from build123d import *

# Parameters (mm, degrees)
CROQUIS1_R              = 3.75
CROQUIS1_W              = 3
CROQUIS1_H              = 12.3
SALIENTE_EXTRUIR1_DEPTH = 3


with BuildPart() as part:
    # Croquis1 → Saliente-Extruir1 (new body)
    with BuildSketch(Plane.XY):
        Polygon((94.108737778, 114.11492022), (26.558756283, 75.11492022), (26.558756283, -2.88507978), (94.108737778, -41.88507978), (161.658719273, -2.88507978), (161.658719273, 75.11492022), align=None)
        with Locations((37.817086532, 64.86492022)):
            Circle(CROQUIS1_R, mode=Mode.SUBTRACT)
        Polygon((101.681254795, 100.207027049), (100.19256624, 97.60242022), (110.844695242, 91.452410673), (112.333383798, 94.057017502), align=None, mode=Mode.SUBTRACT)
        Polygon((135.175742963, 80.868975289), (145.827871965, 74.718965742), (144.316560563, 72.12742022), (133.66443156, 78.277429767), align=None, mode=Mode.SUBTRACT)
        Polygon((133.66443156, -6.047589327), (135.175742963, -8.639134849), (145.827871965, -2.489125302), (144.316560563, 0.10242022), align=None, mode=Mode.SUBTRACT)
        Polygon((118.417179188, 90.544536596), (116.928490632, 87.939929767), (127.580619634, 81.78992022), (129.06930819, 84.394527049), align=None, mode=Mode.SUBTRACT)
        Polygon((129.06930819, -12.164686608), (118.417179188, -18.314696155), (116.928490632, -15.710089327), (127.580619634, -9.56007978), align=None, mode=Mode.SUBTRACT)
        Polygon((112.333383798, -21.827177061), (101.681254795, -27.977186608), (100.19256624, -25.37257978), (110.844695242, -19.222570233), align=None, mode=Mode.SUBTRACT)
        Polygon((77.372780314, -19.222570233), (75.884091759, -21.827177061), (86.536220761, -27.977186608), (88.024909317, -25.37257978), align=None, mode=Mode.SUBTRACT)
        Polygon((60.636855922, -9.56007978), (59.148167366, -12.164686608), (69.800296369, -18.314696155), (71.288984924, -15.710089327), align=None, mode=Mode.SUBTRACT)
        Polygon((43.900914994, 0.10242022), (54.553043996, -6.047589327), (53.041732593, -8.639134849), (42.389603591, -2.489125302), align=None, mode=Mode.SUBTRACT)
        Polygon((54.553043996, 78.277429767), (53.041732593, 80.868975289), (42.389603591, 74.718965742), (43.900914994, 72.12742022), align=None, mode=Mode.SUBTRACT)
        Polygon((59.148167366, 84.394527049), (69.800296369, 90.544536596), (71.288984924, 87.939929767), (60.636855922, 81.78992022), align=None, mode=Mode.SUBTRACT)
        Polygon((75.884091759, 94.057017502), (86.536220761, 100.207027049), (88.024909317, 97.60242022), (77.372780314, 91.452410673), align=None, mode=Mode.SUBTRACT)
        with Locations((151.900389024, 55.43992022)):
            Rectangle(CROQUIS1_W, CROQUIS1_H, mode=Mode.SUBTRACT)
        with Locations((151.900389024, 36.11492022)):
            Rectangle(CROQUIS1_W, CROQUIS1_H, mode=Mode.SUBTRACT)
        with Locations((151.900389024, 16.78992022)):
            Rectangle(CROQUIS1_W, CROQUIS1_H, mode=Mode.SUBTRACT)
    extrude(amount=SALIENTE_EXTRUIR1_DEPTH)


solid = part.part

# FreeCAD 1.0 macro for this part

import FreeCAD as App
import Part
import Sketcher
Q = App.Units.Quantity

doc = App.newDocument("Part")
body = doc.addObject("PartDesign::Body", "Body")

# Sketch on XY plane
sketch1 = doc.addObject("Sketcher::SketchObject", "Sketch")
body.addObject(sketch1)
sketch1.AttachmentSupport = (doc.XY_Plane, [""])
sketch1.MapMode = "FlatFace"
sketch1.addGeometry([
    Part.LineSegment(App.Vector(94.1, 114.1, 0), App.Vector(26.6, 75.1, 0)),  # 0
    Part.LineSegment(App.Vector(26.6, 75.1, 0), App.Vector(26.6, -2.9, 0)),  # 1
    Part.LineSegment(App.Vector(26.6, -2.9, 0), App.Vector(94.1, -41.9, 0)),  # 2
    Part.LineSegment(App.Vector(94.1, -41.9, 0), App.Vector(161.7, -2.9, 0)),  # 3
    Part.LineSegment(App.Vector(161.7, -2.9, 0), App.Vector(161.7, 75.1, 0)),  # 4
    Part.LineSegment(App.Vector(161.7, 75.1, 0), App.Vector(94.1, 114.1, 0)),  # 5
    Part.LineSegment(App.Vector(42.4, -2.5, 0), App.Vector(43.9, 0.1, 0)),  # 6
    Part.LineSegment(App.Vector(43.9, 0.1, 0), App.Vector(54.6, -6, 0)),  # 7
    Part.LineSegment(App.Vector(54.6, -6, 0), App.Vector(53, -8.6, 0)),  # 8
    Part.LineSegment(App.Vector(53, -8.6, 0), App.Vector(42.4, -2.5, 0)),  # 9
    Part.LineSegment(App.Vector(59.1, -12.2, 0), App.Vector(60.6, -9.6, 0)),  # 10
    Part.LineSegment(App.Vector(60.6, -9.6, 0), App.Vector(71.3, -15.7, 0)),  # 11
    Part.LineSegment(App.Vector(71.3, -15.7, 0), App.Vector(69.8, -18.3, 0)),  # 12
    Part.LineSegment(App.Vector(69.8, -18.3, 0), App.Vector(59.1, -12.2, 0)),  # 13
    Part.LineSegment(App.Vector(75.9, -21.8, 0), App.Vector(77.4, -19.2, 0)),  # 14
    Part.LineSegment(App.Vector(77.4, -19.2, 0), App.Vector(88, -25.4, 0)),  # 15
    Part.LineSegment(App.Vector(88, -25.4, 0), App.Vector(86.5, -28, 0)),  # 16
    Part.LineSegment(App.Vector(86.5, -28, 0), App.Vector(75.9, -21.8, 0)),  # 17
    Part.LineSegment(App.Vector(110.8, -19.2, 0), App.Vector(112.3, -21.8, 0)),  # 18
    Part.LineSegment(App.Vector(112.3, -21.8, 0), App.Vector(101.7, -28, 0)),  # 19
    Part.LineSegment(App.Vector(101.7, -28, 0), App.Vector(100.2, -25.4, 0)),  # 20
    Part.LineSegment(App.Vector(100.2, -25.4, 0), App.Vector(110.8, -19.2, 0)),  # 21
    Part.LineSegment(App.Vector(127.6, -9.6, 0), App.Vector(129.1, -12.2, 0)),  # 22
    Part.LineSegment(App.Vector(129.1, -12.2, 0), App.Vector(118.4, -18.3, 0)),  # 23
    Part.LineSegment(App.Vector(118.4, -18.3, 0), App.Vector(116.9, -15.7, 0)),  # 24
    Part.LineSegment(App.Vector(116.9, -15.7, 0), App.Vector(127.6, -9.6, 0)),  # 25
    Part.LineSegment(App.Vector(135.2, -8.6, 0), App.Vector(133.7, -6, 0)),  # 26
    Part.LineSegment(App.Vector(133.7, -6, 0), App.Vector(144.3, 0.1, 0)),  # 27
    Part.LineSegment(App.Vector(144.3, 0.1, 0), App.Vector(145.8, -2.5, 0)),  # 28
    Part.LineSegment(App.Vector(145.8, -2.5, 0), App.Vector(135.2, -8.6, 0)),  # 29
    Part.LineSegment(App.Vector(153.4, 10.6, 0), App.Vector(150.4, 10.6, 0)),  # 30
    Part.LineSegment(App.Vector(150.4, 10.6, 0), App.Vector(150.4, 22.9, 0)),  # 31
    Part.LineSegment(App.Vector(150.4, 22.9, 0), App.Vector(153.4, 22.9, 0)),  # 32
    Part.LineSegment(App.Vector(153.4, 22.9, 0), App.Vector(153.4, 10.6, 0)),  # 33
    Part.LineSegment(App.Vector(153.4, 30, 0), App.Vector(150.4, 30, 0)),  # 34
    Part.LineSegment(App.Vector(150.4, 30, 0), App.Vector(150.4, 42.3, 0)),  # 35
    Part.LineSegment(App.Vector(150.4, 42.3, 0), App.Vector(153.4, 42.3, 0)),  # 36
    Part.LineSegment(App.Vector(153.4, 42.3, 0), App.Vector(153.4, 30, 0)),  # 37
    Part.Circle(App.Vector(37.8, 64.9, 0), App.Vector(0, 0, 1), 3.8),  # 38
    Part.LineSegment(App.Vector(53, 80.9, 0), App.Vector(54.6, 78.3, 0)),  # 39
    Part.LineSegment(App.Vector(54.6, 78.3, 0), App.Vector(43.9, 72.1, 0)),  # 40
    Part.LineSegment(App.Vector(43.9, 72.1, 0), App.Vector(42.4, 74.7, 0)),  # 41
    Part.LineSegment(App.Vector(42.4, 74.7, 0), App.Vector(53, 80.9, 0)),  # 42
    Part.LineSegment(App.Vector(60.6, 81.8, 0), App.Vector(59.1, 84.4, 0)),  # 43
    Part.LineSegment(App.Vector(59.1, 84.4, 0), App.Vector(69.8, 90.5, 0)),  # 44
    Part.LineSegment(App.Vector(69.8, 90.5, 0), App.Vector(71.3, 87.9, 0)),  # 45
    Part.LineSegment(App.Vector(71.3, 87.9, 0), App.Vector(60.6, 81.8, 0)),  # 46
    Part.LineSegment(App.Vector(77.4, 91.5, 0), App.Vector(75.9, 94.1, 0)),  # 47
    Part.LineSegment(App.Vector(75.9, 94.1, 0), App.Vector(86.5, 100.2, 0)),  # 48
    Part.LineSegment(App.Vector(86.5, 100.2, 0), App.Vector(88, 97.6, 0)),  # 49
    Part.LineSegment(App.Vector(88, 97.6, 0), App.Vector(77.4, 91.5, 0)),  # 50
    Part.LineSegment(App.Vector(153.4, 49.3, 0), App.Vector(150.4, 49.3, 0)),  # 51
    Part.LineSegment(App.Vector(150.4, 49.3, 0), App.Vector(150.4, 61.6, 0)),  # 52
    Part.LineSegment(App.Vector(150.4, 61.6, 0), App.Vector(153.4, 61.6, 0)),  # 53
    Part.LineSegment(App.Vector(153.4, 61.6, 0), App.Vector(153.4, 49.3, 0)),  # 54
    Part.LineSegment(App.Vector(100.2, 97.6, 0), App.Vector(101.7, 100.2, 0)),  # 55
    Part.LineSegment(App.Vector(101.7, 100.2, 0), App.Vector(112.3, 94.1, 0)),  # 56
    Part.LineSegment(App.Vector(112.3, 94.1, 0), App.Vector(110.8, 91.5, 0)),  # 57
    Part.LineSegment(App.Vector(110.8, 91.5, 0), App.Vector(100.2, 97.6, 0)),  # 58
    Part.LineSegment(App.Vector(116.9, 87.9, 0), App.Vector(118.4, 90.5, 0)),  # 59
    Part.LineSegment(App.Vector(118.4, 90.5, 0), App.Vector(129.1, 84.4, 0)),  # 60
    Part.LineSegment(App.Vector(129.1, 84.4, 0), App.Vector(127.6, 81.8, 0)),  # 61
    Part.LineSegment(App.Vector(127.6, 81.8, 0), App.Vector(116.9, 87.9, 0)),  # 62
    Part.LineSegment(App.Vector(133.7, 78.3, 0), App.Vector(135.2, 80.9, 0)),  # 63
    Part.LineSegment(App.Vector(135.2, 80.9, 0), App.Vector(145.8, 74.7, 0)),  # 64
    Part.LineSegment(App.Vector(145.8, 74.7, 0), App.Vector(144.3, 72.1, 0)),  # 65
    Part.LineSegment(App.Vector(144.3, 72.1, 0), App.Vector(133.7, 78.3, 0)),  # 66
], False)
sketch1.addConstraint([
    Sketcher.Constraint("Coincident", 0, 2, 1, 1),
    Sketcher.Constraint("Coincident", 1, 2, 2, 1),
    Sketcher.Constraint("Coincident", 2, 2, 3, 1),
    Sketcher.Constraint("Coincident", 3, 2, 4, 1),
    Sketcher.Constraint("Coincident", 4, 2, 5, 1),
    Sketcher.Constraint("Coincident", 5, 2, 0, 1),
    Sketcher.Constraint("Coincident", 6, 2, 7, 1),
    Sketcher.Constraint("Coincident", 7, 2, 8, 1),
    Sketcher.Constraint("Coincident", 8, 2, 9, 1),
    Sketcher.Constraint("Coincident", 9, 2, 6, 1),
    Sketcher.Constraint("Coincident", 10, 2, 11, 1),
    Sketcher.Constraint("Coincident", 11, 2, 12, 1),
    Sketcher.Constraint("Coincident", 12, 2, 13, 1),
    Sketcher.Constraint("Coincident", 13, 2, 10, 1),
    Sketcher.Constraint("Coincident", 14, 2, 15, 1),
    Sketcher.Constraint("Coincident", 15, 2, 16, 1),
    Sketcher.Constraint("Coincident", 16, 2, 17, 1),
    Sketcher.Constraint("Coincident", 17, 2, 14, 1),
    Sketcher.Constraint("Coincident", 18, 2, 19, 1),
    Sketcher.Constraint("Coincident", 19, 2, 20, 1),
    Sketcher.Constraint("Coincident", 20, 2, 21, 1),
    Sketcher.Constraint("Coincident", 21, 2, 18, 1),
    Sketcher.Constraint("Coincident", 22, 2, 23, 1),
    Sketcher.Constraint("Coincident", 23, 2, 24, 1),
    Sketcher.Constraint("Coincident", 24, 2, 25, 1),
    Sketcher.Constraint("Coincident", 25, 2, 22, 1),
    Sketcher.Constraint("Coincident", 26, 2, 27, 1),
    Sketcher.Constraint("Coincident", 27, 2, 28, 1),
    Sketcher.Constraint("Coincident", 28, 2, 29, 1),
    Sketcher.Constraint("Coincident", 29, 2, 26, 1),
    Sketcher.Constraint("Coincident", 30, 2, 31, 1),
    Sketcher.Constraint("Coincident", 31, 2, 32, 1),
    Sketcher.Constraint("Coincident", 32, 2, 33, 1),
    Sketcher.Constraint("Coincident", 33, 2, 30, 1),
    Sketcher.Constraint("Coincident", 34, 2, 35, 1),
    Sketcher.Constraint("Coincident", 35, 2, 36, 1),
    Sketcher.Constraint("Coincident", 36, 2, 37, 1),
    Sketcher.Constraint("Coincident", 37, 2, 34, 1),
    Sketcher.Constraint("Coincident", 39, 2, 40, 1),
    Sketcher.Constraint("Coincident", 40, 2, 41, 1),
    Sketcher.Constraint("Coincident", 41, 2, 42, 1),
    Sketcher.Constraint("Coincident", 42, 2, 39, 1),
    Sketcher.Constraint("Coincident", 43, 2, 44, 1),
    Sketcher.Constraint("Coincident", 44, 2, 45, 1),
    Sketcher.Constraint("Coincident", 45, 2, 46, 1),
    Sketcher.Constraint("Coincident", 46, 2, 43, 1),
    Sketcher.Constraint("Coincident", 47, 2, 48, 1),
    Sketcher.Constraint("Coincident", 48, 2, 49, 1),
    Sketcher.Constraint("Coincident", 49, 2, 50, 1),
    Sketcher.Constraint("Coincident", 50, 2, 47, 1),
    Sketcher.Constraint("Coincident", 51, 2, 52, 1),
    Sketcher.Constraint("Coincident", 52, 2, 53, 1),
    Sketcher.Constraint("Coincident", 53, 2, 54, 1),
    Sketcher.Constraint("Coincident", 54, 2, 51, 1),
    Sketcher.Constraint("Coincident", 55, 2, 56, 1),
    Sketcher.Constraint("Coincident", 56, 2, 57, 1),
    Sketcher.Constraint("Coincident", 57, 2, 58, 1),
    Sketcher.Constraint("Coincident", 58, 2, 55, 1),
    Sketcher.Constraint("Coincident", 59, 2, 60, 1),
    Sketcher.Constraint("Coincident", 60, 2, 61, 1),
    Sketcher.Constraint("Coincident", 61, 2, 62, 1),
    Sketcher.Constraint("Coincident", 62, 2, 59, 1),
    Sketcher.Constraint("Coincident", 63, 2, 64, 1),
    Sketcher.Constraint("Coincident", 64, 2, 65, 1),
    Sketcher.Constraint("Coincident", 65, 2, 66, 1),
    Sketcher.Constraint("Coincident", 66, 2, 63, 1),
    Sketcher.Constraint("Vertical", 1),
    Sketcher.Constraint("Vertical", 4),
    Sketcher.Constraint("Horizontal", 30),
    Sketcher.Constraint("Vertical", 31),
    Sketcher.Constraint("Horizontal", 32),
    Sketcher.Constraint("Vertical", 33),
    Sketcher.Constraint("Horizontal", 34),
    Sketcher.Constraint("Vertical", 35),
    Sketcher.Constraint("Horizontal", 36),
    Sketcher.Constraint("Vertical", 37),
    Sketcher.Constraint("Horizontal", 51),
    Sketcher.Constraint("Vertical", 52),
    Sketcher.Constraint("Horizontal", 53),
    Sketcher.Constraint("Vertical", 54),
    Sketcher.Constraint("Parallel", 0, 3),
    Sketcher.Constraint("Parallel", 2, 5),
    Sketcher.Constraint("Parallel", 5, 7),
    Sketcher.Constraint("Parallel", 6, 8),
    Sketcher.Constraint("Parallel", 7, 9),
    Sketcher.Constraint("Parallel", 9, 11),
    Sketcher.Constraint("Parallel", 10, 12),
    Sketcher.Constraint("Parallel", 11, 13),
    Sketcher.Constraint("Parallel", 12, 14),
    Sketcher.Constraint("Parallel", 13, 15),
    Sketcher.Constraint("Parallel", 14, 16),
    Sketcher.Constraint("Parallel", 15, 17),
    Sketcher.Constraint("Parallel", 3, 19),
    Sketcher.Constraint("Parallel", 18, 20),
    Sketcher.Constraint("Parallel", 19, 21),
    Sketcher.Constraint("Parallel", 20, 22),
    Sketcher.Constraint("Parallel", 21, 23),
    Sketcher.Constraint("Parallel", 22, 24),
    Sketcher.Constraint("Parallel", 23, 25),
    Sketcher.Constraint("Parallel", 25, 27),
    Sketcher.Constraint("Parallel", 26, 28),
    Sketcher.Constraint("Parallel", 27, 29),
    Sketcher.Constraint("Parallel", 28, 39),
    Sketcher.Constraint("Parallel", 29, 40),
    Sketcher.Constraint("Parallel", 39, 41),
    Sketcher.Constraint("Parallel", 40, 42),
    Sketcher.Constraint("Parallel", 24, 43),
    Sketcher.Constraint("Parallel", 42, 44),
    Sketcher.Constraint("Parallel", 43, 45),
    Sketcher.Constraint("Parallel", 44, 46),
    Sketcher.Constraint("Parallel", 45, 47),
    Sketcher.Constraint("Parallel", 46, 48),
    Sketcher.Constraint("Parallel", 47, 49),
    Sketcher.Constraint("Parallel", 48, 50),
    Sketcher.Constraint("Parallel", 16, 55),
    Sketcher.Constraint("Parallel", 17, 56),
    Sketcher.Constraint("Parallel", 55, 57),
    Sketcher.Constraint("Parallel", 56, 58),
    Sketcher.Constraint("Parallel", 57, 59),
    Sketcher.Constraint("Parallel", 58, 60),
    Sketcher.Constraint("Parallel", 59, 61),
    Sketcher.Constraint("Parallel", 60, 62),
    Sketcher.Constraint("Parallel", 8, 63),
    Sketcher.Constraint("Parallel", 62, 64),
    Sketcher.Constraint("Parallel", 63, 65),
    Sketcher.Constraint("Parallel", 64, 66),
    Sketcher.Constraint("Horizontal", 1, 2, 3, 2),
    Sketcher.Constraint("Horizontal", 0, 2, 4, 2),
    Sketcher.Constraint("Horizontal", 17, 2, 18, 2),
    Sketcher.Constraint("Horizontal", 16, 2, 19, 2),
    Sketcher.Constraint("Horizontal", 15, 2, 20, 2),
    Sketcher.Constraint("Horizontal", 13, 2, 22, 2),
    Sketcher.Constraint("Horizontal", 12, 2, 23, 2),
    Sketcher.Constraint("Horizontal", 11, 2, 24, 2),
    Sketcher.Constraint("Horizontal", 7, 2, 26, 2),
    Sketcher.Constraint("Horizontal", 6, 2, 27, 2),
    Sketcher.Constraint("Horizontal", 9, 2, 28, 2),
    Sketcher.Constraint("Horizontal", 48, 2, 55, 2),
    Sketcher.Constraint("Horizontal", 47, 2, 56, 2),
    Sketcher.Constraint("Horizontal", 50, 2, 57, 2),
    Sketcher.Constraint("Horizontal", 44, 2, 59, 2),
    Sketcher.Constraint("Horizontal", 43, 2, 60, 2),
    Sketcher.Constraint("Horizontal", 46, 2, 61, 2),
    Sketcher.Constraint("Horizontal", 42, 2, 63, 2),
    Sketcher.Constraint("Horizontal", 41, 2, 64, 2),
    Sketcher.Constraint("Horizontal", 40, 2, 65, 2),
    Sketcher.Constraint("Vertical", 2, 2, 5, 2),
    Sketcher.Constraint("Vertical", 31, 2, 34, 2),
    Sketcher.Constraint("Vertical", 33, 2, 36, 2),
    Sketcher.Constraint("Vertical", 7, 2, 39, 2),
    Sketcher.Constraint("Vertical", 6, 2, 40, 2),
    Sketcher.Constraint("Vertical", 9, 2, 41, 2),
    Sketcher.Constraint("Vertical", 13, 2, 43, 2),
    Sketcher.Constraint("Vertical", 12, 2, 44, 2),
    Sketcher.Constraint("Vertical", 11, 2, 45, 2),
    Sketcher.Constraint("Vertical", 17, 2, 47, 2),
    Sketcher.Constraint("Vertical", 16, 2, 48, 2),
    Sketcher.Constraint("Vertical", 15, 2, 49, 2),
    Sketcher.Constraint("Vertical", 35, 2, 51, 2),
    Sketcher.Constraint("Vertical", 37, 2, 53, 2),
    Sketcher.Constraint("Vertical", 19, 2, 55, 2),
    Sketcher.Constraint("Vertical", 21, 2, 57, 2),
    Sketcher.Constraint("Vertical", 23, 2, 59, 2),
    Sketcher.Constraint("Vertical", 29, 2, 63, 2),
    Sketcher.Constraint("Vertical", 27, 2, 65, 2),
    Sketcher.Constraint("Equal", 33, 35),
    Sketcher.Constraint("Equal", 37, 52),
    Sketcher.Constraint("Equal", 8, 10),
    Sketcher.Constraint("Equal", 9, 11),
    Sketcher.Constraint("Equal", 12, 14),
    Sketcher.Constraint("Equal", 13, 15),
    Sketcher.Constraint("Diameter", 38, 7.5),
    Sketcher.Constraint("DistanceX", 30, 2, 30, 1, 3.0),
    Sketcher.Constraint("DistanceY", 1, 2, 1, 1, 78.0),
    Sketcher.Constraint("Angle", 0, Q("-150 deg")),
    Sketcher.Constraint("Distance", 0, 78.0),
    Sketcher.Constraint("DistanceY", 31, 1, 31, 2, 12.3),
    Sketcher.Constraint("Distance", 6, 3.000028),
    Sketcher.Constraint("Distance", 7, 12.300019),
    Sketcher.Constraint("DistanceY", -1, 1, 38, 3, 64.86492),
    Sketcher.Constraint("DistanceY", -1, 1, 0, 2, 75.11492),
    Sketcher.Constraint("DistanceX", -1, 1, 3, 2, 161.658719),
    Sketcher.Constraint("DistanceY", -1, 1, 6, 2, 0.10242),
    Sketcher.Constraint("DistanceY", 10, 2, -1, 1, 9.56008),
    Sketcher.Constraint("DistanceX", -1, 1, 14, 2, 77.37278),
    Sketcher.Constraint("DistanceY", 14, 2, -1, 1, 19.22257),
    Sketcher.Constraint("DistanceX", -1, 1, 16, 2, 86.536221),
    Sketcher.Constraint("DistanceX", -1, 1, 22, 2, 129.069308),
    Sketcher.Constraint("DistanceX", -1, 1, 26, 2, 133.664432),
    Sketcher.Constraint("DistanceX", -1, 1, 28, 2, 145.827872),
    Sketcher.Constraint("DistanceX", -1, 1, 30, 2, 150.400389),
    Sketcher.Constraint("DistanceY", -1, 1, 30, 2, 10.63992),
    Sketcher.Constraint("DistanceY", -1, 1, 34, 2, 29.96492),
    Sketcher.Constraint("DistanceY", -1, 1, 39, 2, 78.27743),
    Sketcher.Constraint("DistanceY", -1, 1, 45, 2, 87.93993),
    Sketcher.Constraint("DistanceY", -1, 1, 49, 2, 97.60242),
    Sketcher.Constraint("DistanceY", -1, 1, 51, 2, 49.28992),
    Sketcher.Constraint("DistanceX", -1, 1, 38, 3, 37.817087),
    Sketcher.Constraint("DistanceX", -1, 1, 6, 2, 43.900915),
    Sketcher.Constraint("DistanceX", -1, 1, 10, 2, 60.636856),
    Sketcher.Constraint("DistanceX", -1, 1, 18, 2, 112.333384),
])
pad1 = doc.addObject("PartDesign::Pad", "Pad")
body.addObject(pad1)
pad1.Profile = sketch1
pad1.Length = 3

doc.recompute()
